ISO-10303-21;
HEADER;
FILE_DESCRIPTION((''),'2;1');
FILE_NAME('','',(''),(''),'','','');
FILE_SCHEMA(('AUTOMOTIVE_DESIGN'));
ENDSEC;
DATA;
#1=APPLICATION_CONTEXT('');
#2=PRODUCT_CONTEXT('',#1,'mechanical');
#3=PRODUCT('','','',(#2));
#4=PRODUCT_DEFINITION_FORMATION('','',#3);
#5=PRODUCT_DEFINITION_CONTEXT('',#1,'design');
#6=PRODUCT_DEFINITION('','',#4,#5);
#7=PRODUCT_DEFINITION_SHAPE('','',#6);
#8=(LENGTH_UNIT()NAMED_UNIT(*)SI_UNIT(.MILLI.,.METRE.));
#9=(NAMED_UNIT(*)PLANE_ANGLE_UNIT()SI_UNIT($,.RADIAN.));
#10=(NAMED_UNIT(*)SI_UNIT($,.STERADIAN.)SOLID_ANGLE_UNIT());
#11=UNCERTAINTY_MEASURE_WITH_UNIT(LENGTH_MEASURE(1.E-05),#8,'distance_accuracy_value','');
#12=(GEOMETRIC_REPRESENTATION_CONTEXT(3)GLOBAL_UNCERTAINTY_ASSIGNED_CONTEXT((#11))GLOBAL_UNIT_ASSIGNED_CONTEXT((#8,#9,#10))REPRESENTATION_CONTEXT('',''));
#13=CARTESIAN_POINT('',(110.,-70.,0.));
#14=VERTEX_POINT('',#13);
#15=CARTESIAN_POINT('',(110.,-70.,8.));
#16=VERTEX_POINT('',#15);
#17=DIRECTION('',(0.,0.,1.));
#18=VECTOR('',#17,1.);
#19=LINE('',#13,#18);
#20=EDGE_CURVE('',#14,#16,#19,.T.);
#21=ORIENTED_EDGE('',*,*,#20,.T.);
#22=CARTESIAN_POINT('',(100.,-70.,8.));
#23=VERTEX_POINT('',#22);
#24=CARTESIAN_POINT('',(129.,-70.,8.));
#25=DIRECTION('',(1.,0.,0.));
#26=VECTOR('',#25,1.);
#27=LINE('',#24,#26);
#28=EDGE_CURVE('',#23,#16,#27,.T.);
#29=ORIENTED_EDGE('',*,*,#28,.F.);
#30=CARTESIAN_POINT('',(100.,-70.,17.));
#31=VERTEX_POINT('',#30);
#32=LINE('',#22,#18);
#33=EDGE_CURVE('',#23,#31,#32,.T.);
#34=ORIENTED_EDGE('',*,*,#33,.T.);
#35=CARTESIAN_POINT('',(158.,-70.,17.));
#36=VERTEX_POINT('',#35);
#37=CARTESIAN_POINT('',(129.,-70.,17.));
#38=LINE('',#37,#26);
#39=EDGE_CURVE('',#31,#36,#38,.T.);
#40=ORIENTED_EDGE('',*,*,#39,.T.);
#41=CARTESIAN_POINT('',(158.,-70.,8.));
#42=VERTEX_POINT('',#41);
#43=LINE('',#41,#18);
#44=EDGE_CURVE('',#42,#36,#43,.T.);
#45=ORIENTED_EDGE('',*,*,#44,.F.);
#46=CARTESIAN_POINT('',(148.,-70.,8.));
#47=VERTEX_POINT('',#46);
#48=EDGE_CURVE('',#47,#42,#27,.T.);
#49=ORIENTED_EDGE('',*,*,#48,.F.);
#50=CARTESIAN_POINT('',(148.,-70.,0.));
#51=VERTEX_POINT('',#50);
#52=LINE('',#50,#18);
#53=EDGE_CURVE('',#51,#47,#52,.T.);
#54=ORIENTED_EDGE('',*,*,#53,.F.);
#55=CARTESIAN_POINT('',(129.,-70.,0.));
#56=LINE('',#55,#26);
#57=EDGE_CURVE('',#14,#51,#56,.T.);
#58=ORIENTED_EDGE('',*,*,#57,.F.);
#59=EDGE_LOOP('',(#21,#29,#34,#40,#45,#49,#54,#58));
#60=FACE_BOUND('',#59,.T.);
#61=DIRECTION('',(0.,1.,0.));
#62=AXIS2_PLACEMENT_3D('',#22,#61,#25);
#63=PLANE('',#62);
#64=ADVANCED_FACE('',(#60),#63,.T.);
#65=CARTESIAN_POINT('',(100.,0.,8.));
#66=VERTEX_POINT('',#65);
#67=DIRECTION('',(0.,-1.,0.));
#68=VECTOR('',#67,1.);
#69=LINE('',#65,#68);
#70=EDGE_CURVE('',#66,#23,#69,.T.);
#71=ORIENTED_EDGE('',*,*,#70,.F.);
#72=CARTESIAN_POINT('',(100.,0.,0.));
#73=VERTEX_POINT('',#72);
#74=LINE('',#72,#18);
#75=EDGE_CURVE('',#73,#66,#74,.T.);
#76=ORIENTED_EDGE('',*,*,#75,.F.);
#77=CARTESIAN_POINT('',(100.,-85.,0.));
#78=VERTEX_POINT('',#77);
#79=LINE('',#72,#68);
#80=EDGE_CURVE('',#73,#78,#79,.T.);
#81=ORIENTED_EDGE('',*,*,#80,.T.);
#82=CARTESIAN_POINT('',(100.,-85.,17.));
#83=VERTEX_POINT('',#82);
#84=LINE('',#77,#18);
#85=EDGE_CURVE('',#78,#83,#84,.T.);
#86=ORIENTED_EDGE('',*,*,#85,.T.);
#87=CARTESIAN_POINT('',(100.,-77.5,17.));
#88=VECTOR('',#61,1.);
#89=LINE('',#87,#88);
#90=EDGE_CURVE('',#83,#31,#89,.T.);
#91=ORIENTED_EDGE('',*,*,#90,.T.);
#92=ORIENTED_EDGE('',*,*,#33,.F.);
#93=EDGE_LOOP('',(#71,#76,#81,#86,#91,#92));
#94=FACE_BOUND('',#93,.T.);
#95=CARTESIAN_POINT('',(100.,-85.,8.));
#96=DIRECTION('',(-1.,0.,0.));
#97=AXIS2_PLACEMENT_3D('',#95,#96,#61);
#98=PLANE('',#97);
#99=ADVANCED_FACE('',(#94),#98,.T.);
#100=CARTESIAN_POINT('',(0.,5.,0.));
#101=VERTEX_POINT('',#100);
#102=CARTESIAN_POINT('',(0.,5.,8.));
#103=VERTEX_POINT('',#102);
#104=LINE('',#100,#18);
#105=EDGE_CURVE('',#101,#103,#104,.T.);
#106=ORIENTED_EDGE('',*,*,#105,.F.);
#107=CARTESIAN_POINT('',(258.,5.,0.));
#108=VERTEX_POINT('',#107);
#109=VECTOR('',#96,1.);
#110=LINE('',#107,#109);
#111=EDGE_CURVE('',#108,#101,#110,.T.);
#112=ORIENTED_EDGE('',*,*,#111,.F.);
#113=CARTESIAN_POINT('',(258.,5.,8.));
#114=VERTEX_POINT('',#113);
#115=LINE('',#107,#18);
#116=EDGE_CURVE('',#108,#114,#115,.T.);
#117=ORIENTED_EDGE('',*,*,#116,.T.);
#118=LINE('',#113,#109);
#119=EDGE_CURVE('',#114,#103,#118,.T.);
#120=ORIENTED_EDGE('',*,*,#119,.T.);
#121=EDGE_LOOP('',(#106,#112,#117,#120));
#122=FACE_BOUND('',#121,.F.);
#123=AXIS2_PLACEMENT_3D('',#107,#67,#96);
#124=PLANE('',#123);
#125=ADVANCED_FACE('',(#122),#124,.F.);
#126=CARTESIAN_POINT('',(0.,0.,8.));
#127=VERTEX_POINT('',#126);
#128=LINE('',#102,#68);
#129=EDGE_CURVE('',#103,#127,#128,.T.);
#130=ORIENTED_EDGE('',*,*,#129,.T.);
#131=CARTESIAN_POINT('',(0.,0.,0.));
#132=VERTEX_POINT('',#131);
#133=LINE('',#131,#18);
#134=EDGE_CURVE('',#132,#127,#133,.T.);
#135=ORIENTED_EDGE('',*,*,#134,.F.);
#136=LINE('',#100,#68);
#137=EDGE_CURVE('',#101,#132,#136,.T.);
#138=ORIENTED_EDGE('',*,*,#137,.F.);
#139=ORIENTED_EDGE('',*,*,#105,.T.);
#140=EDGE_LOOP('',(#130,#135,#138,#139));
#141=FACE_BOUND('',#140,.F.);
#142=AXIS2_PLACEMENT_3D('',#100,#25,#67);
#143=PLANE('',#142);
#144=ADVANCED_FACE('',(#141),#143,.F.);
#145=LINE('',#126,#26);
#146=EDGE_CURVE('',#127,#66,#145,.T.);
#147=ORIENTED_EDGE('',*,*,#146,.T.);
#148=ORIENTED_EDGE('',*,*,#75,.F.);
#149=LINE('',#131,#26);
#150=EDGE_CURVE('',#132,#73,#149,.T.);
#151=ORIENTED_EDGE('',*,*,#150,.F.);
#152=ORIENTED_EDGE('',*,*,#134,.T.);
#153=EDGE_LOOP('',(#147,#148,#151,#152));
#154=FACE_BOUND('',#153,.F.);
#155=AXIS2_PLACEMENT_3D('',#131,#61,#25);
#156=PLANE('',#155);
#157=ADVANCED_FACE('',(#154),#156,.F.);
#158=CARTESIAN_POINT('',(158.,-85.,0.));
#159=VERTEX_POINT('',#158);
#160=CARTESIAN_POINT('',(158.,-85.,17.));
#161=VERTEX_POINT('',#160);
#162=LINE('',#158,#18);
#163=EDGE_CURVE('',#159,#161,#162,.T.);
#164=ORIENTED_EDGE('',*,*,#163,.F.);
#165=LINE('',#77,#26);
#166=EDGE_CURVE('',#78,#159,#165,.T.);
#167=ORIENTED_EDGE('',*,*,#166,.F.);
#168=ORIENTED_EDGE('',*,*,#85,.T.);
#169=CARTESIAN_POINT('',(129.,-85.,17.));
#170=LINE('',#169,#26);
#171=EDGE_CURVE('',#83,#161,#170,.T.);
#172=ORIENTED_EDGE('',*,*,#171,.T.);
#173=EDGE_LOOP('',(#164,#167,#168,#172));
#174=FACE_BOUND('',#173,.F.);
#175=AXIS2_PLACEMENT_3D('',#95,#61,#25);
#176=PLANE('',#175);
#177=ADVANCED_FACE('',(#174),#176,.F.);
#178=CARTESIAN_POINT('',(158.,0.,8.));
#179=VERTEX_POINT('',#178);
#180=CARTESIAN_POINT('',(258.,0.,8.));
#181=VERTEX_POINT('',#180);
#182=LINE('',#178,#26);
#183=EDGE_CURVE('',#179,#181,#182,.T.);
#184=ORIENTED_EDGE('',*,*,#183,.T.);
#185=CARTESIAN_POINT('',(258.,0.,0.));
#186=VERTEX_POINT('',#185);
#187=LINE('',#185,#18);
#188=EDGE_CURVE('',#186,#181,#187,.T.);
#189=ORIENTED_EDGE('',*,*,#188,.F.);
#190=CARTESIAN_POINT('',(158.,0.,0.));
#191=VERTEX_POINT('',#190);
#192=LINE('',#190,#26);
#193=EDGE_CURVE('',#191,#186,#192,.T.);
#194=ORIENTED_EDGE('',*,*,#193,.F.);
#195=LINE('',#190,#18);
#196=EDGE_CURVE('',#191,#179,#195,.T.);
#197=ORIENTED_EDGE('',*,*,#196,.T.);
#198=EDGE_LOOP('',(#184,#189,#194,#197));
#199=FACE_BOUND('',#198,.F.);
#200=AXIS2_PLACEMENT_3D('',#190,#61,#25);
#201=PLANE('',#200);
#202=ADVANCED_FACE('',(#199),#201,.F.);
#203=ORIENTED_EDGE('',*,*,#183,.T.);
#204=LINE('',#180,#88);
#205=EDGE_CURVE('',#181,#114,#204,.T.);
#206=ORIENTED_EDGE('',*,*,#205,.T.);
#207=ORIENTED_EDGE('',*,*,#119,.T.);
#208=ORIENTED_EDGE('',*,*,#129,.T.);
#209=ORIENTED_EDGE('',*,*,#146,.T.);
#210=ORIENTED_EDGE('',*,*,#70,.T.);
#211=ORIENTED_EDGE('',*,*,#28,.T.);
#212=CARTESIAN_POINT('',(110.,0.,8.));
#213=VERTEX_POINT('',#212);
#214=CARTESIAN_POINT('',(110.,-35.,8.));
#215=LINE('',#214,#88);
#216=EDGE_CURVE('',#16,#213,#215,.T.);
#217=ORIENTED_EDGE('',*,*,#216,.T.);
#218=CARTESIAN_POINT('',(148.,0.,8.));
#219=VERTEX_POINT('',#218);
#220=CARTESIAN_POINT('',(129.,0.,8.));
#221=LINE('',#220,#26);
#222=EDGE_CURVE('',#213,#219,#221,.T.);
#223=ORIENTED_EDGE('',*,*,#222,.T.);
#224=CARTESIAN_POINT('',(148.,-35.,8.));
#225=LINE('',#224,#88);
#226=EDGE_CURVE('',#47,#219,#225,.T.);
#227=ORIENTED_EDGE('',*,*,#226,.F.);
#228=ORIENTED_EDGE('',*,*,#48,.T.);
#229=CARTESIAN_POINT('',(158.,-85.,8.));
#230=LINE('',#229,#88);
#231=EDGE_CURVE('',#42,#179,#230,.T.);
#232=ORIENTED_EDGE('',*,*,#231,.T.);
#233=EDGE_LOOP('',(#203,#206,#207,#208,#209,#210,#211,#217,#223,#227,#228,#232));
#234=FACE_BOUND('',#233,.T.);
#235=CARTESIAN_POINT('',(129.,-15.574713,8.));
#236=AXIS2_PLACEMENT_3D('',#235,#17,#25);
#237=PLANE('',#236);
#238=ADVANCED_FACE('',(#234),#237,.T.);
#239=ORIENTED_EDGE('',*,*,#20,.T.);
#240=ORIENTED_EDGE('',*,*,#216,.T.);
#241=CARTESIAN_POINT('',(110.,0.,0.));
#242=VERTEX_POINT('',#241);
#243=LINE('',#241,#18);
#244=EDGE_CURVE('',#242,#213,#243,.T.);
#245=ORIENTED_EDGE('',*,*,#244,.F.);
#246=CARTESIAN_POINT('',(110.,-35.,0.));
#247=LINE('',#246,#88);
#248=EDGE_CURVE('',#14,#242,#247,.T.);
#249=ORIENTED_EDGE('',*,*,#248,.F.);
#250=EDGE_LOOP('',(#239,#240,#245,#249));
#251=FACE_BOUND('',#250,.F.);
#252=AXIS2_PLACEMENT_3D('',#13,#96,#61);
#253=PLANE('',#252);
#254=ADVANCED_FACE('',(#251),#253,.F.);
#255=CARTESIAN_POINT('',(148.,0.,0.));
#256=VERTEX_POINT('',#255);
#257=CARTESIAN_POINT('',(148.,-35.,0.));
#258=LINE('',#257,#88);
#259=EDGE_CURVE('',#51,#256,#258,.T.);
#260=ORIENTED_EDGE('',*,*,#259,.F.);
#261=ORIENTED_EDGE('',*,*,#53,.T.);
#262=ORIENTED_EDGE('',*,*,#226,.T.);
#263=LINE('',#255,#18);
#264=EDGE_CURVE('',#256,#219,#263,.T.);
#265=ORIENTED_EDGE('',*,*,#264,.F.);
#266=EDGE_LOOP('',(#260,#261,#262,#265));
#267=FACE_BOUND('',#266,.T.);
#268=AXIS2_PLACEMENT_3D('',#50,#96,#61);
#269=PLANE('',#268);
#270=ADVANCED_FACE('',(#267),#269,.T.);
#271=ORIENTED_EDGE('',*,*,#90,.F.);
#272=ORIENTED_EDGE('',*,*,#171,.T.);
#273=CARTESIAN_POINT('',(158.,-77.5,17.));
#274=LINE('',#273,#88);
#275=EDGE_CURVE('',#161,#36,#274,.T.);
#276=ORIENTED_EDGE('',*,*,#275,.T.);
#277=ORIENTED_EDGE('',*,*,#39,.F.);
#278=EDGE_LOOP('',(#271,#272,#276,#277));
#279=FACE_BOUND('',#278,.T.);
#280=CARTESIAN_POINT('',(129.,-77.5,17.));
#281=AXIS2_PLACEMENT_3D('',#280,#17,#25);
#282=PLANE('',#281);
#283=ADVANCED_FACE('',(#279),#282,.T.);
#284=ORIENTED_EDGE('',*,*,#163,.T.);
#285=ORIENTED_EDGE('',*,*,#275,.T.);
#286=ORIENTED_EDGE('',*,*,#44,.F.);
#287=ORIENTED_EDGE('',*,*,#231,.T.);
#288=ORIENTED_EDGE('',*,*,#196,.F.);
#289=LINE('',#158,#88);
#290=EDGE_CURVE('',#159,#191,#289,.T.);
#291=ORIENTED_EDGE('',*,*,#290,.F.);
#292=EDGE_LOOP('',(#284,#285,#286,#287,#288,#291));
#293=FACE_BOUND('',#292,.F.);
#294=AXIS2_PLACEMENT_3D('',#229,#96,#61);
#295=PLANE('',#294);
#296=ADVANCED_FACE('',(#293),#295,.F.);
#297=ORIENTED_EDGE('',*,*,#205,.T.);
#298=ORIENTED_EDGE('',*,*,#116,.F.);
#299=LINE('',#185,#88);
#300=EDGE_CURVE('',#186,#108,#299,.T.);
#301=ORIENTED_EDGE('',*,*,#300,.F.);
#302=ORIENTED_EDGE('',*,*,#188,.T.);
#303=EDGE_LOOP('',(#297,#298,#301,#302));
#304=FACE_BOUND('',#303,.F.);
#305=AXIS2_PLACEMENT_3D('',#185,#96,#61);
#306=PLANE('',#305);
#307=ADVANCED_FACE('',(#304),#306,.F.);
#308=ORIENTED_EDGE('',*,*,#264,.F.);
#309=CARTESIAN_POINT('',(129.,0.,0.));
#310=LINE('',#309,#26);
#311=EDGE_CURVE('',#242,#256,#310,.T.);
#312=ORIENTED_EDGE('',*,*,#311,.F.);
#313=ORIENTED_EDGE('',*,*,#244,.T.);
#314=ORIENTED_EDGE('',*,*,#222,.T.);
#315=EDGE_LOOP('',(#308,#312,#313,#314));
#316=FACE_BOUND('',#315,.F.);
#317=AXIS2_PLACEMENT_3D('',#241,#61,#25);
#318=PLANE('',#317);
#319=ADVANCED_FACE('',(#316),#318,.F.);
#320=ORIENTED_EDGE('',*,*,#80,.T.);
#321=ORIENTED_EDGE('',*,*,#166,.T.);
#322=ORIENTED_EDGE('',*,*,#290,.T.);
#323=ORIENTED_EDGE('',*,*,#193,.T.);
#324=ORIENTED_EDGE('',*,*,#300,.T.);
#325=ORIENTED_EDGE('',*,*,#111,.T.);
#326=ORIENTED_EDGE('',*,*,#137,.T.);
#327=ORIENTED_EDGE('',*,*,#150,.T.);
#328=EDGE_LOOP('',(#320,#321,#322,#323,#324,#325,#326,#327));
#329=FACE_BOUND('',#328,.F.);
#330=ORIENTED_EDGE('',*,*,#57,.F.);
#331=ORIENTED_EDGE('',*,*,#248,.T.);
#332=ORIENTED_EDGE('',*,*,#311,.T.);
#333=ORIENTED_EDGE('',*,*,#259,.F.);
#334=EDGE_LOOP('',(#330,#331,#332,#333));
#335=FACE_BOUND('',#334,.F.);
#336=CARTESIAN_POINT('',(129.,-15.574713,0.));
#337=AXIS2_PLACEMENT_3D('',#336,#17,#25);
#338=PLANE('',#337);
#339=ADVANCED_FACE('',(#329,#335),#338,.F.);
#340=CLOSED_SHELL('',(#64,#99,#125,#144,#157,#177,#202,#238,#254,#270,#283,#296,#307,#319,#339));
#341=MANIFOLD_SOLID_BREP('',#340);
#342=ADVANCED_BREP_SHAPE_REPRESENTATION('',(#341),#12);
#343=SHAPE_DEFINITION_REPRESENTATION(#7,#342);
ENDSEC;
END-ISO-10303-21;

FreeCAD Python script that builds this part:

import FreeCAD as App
import Part
import Sketcher

V = App.Vector

doc = App.newDocument("Part")
body = doc.addObject("PartDesign::Body", "Body")

sketch1 = body.newObject("Sketcher::SketchObject", "Sketch")
sketch1.AttachmentSupport = (doc.getObject("XY_Plane"), [""])
sketch1.MapMode = "FlatFace"
sketch1.addGeometry([
    Part.LineSegment(V(258, 0, 0), V(258, 5, 0)),
    Part.LineSegment(V(258, 5, 0), V(0, 5, 0)),
    Part.LineSegment(V(0, 5, 0), V(0, 0, 0)),
    Part.LineSegment(V(0, 0, 0), V(100, 0, 0)),
    Part.LineSegment(V(100, 0, 0), V(100, -85, 0)),
    Part.LineSegment(V(100, -85, 0), V(158, -85, 0)),
    Part.LineSegment(V(158, -85, 0), V(158, 0, 0)),
    Part.LineSegment(V(158, 0, 0), V(258, 0, 0)),
    Part.LineSegment(V(148, -70, 0), V(110, -70, 0)),
    Part.LineSegment(V(110, -70, 0), V(110, 0, 0)),
    Part.LineSegment(V(110, 0, 0), V(148, 0, 0)),
    Part.LineSegment(V(148, 0, 0), V(148, -70, 0)),
], False)
sketch1.addConstraint([
    Sketcher.Constraint("Coincident", 0, 2, 1, 1),
    Sketcher.Constraint("Coincident", 1, 2, 2, 1),
    Sketcher.Constraint("Coincident", 2, 2, 3, 1),
    Sketcher.Constraint("Coincident", 3, 2, 4, 1),
    Sketcher.Constraint("Coincident", 4, 2, 5, 1),
    Sketcher.Constraint("Coincident", 5, 2, 6, 1),
    Sketcher.Constraint("Coincident", 6, 2, 7, 1),
    Sketcher.Constraint("Coincident", 7, 2, 0, 1),
    Sketcher.Constraint("Coincident", 8, 2, 9, 1),
    Sketcher.Constraint("Coincident", 9, 2, 10, 1),
    Sketcher.Constraint("Coincident", 10, 2, 11, 1),
    Sketcher.Constraint("Coincident", 11, 2, 8, 1),
    Sketcher.Constraint("Vertical", 0),
    Sketcher.Constraint("Horizontal", 1),
    Sketcher.Constraint("Vertical", 2),
    Sketcher.Constraint("Horizontal", 3),
    Sketcher.Constraint("Vertical", 4),
    Sketcher.Constraint("Horizontal", 5),
    Sketcher.Constraint("Vertical", 6),
    Sketcher.Constraint("Horizontal", 7),
    Sketcher.Constraint("Horizontal", 8),
    Sketcher.Constraint("Vertical", 9),
    Sketcher.Constraint("Horizontal", 10),
    Sketcher.Constraint("Vertical", 11),
    Sketcher.Constraint("Coincident", 2, 2, -1, 1),
    Sketcher.Constraint("PointOnObject", 6, 2, -1),
    Sketcher.Constraint("PointOnObject", 9, 2, -1),
    Sketcher.Constraint("Equal", 3, 7),
    Sketcher.Constraint("DistanceX", 1, 2, 1, 1, 258.0),
    Sketcher.Constraint("DistanceX", 3, 1, 3, 2, 100.0),
    Sketcher.Constraint("DistanceX", 8, 2, 8, 1, 38.0),
    Sketcher.Constraint("DistanceY", 0, 1, 0, 2, 5.0),
    Sketcher.Constraint("DistanceY", 4, 2, 4, 1, 85.0),
    Sketcher.Constraint("DistanceY", 9, 1, 9, 2, 70.0),
    Sketcher.Constraint("DistanceX", -1, 1, 8, 2, 110.0),
])
pad1 = body.newObject("PartDesign::Pad", "Pad")
pad1.Profile = sketch1
pad1.Length = 8

sketch2 = body.newObject("Sketcher::SketchObject", "Sketch001")
sketch2.AttachmentSupport = (doc.getObject("XY_Plane"), [""])
sketch2.MapMode = "FlatFace"
sketch2.AttachmentOffset = App.Placement(V(0, 0, 8), App.Rotation())
sketch2.addGeometry([
    Part.LineSegment(V(100, -70, 0), V(100, -85, 0)),
    Part.LineSegment(V(100, -85, 0), V(158, -85, 0)),
    Part.LineSegment(V(158, -85, 0), V(158, -70, 0)),
    Part.LineSegment(V(158, -70, 0), V(100, -70, 0)),
], False)
sketch2.addConstraint([
    Sketcher.Constraint("Coincident", 0, 2, 1, 1),
    Sketcher.Constraint("Coincident", 1, 2, 2, 1),
    Sketcher.Constraint("Coincident", 2, 2, 3, 1),
    Sketcher.Constraint("Coincident", 3, 2, 0, 1),
    Sketcher.Constraint("Vertical", 0),
    Sketcher.Constraint("Horizontal", 1),
    Sketcher.Constraint("Vertical", 2),
    Sketcher.Constraint("Horizontal", 3),
    Sketcher.Constraint("DistanceX", 1, 1, 1, 2, 58.0),
    Sketcher.Constraint("DistanceY", 0, 2, 0, 1, 15.0),
    Sketcher.Constraint("DistanceX", -1, 1, 0, 2, 100.0),
    Sketcher.Constraint("DistanceY", 0, 2, -1, 1, 85.0),
])
pad2 = body.newObject("PartDesign::Pad", "Pad001")
pad2.Profile = sketch2
pad2.Length = 9

doc.recompute()
